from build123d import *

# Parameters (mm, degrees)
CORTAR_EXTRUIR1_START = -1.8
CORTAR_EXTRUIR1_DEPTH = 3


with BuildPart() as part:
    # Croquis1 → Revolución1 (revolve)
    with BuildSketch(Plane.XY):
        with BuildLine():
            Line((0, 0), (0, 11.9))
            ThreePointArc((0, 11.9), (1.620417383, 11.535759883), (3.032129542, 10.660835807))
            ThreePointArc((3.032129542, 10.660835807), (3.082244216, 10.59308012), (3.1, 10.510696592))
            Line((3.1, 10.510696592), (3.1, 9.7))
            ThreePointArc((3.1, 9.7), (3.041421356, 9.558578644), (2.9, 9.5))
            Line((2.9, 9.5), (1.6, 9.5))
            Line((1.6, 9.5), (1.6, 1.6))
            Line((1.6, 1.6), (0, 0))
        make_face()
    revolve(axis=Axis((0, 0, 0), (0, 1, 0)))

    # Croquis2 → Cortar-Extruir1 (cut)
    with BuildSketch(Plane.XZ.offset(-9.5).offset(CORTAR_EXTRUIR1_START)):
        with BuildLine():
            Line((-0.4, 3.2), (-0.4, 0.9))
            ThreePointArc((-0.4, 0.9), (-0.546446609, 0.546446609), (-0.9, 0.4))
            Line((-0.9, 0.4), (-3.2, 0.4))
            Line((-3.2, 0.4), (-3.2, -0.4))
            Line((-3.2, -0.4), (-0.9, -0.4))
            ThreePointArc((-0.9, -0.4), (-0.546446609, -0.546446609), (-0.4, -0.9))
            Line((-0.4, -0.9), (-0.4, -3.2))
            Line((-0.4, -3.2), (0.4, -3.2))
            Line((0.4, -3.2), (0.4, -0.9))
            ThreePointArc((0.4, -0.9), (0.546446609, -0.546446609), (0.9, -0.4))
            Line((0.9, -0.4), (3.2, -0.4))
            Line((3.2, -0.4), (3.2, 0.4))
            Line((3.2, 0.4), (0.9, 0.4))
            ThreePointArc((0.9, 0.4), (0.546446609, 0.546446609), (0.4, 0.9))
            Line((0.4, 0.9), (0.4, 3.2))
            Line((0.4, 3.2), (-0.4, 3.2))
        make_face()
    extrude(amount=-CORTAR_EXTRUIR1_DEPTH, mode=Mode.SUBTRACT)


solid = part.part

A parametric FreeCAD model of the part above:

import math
import FreeCAD as App
import Part
import Sketcher
from FreeCAD import Vector
Q = App.Units.Quantity

doc = App.newDocument("Part")
params = doc.addObject("Spreadsheet::Sheet", "Params")
for row, (alias, value) in enumerate([
    ("sketch1_radius", "5 mm"),
    ("sketch1_radius2", "0.2 mm"),
    ("sketch1_width", "1.3 mm"),
    ("sketch1_height", "11.9 mm"),
    ("sketch1_height2", "7.9 mm"),
    ("revolution_angle", "360 deg"),
    ("sketch2_radius", "0.5 mm"),
    ("sketch2_width", "2.3 mm"),
    ("sketch2_width2", "0.8 mm"),
    ("pocket1_length", "3 mm"),
], start=1):
    params.set(f"A{row}", alias)
    params.set(f"B{row}", "=" + value)
    params.setAlias(f"B{row}", alias)

body = doc.addObject("PartDesign::Body", "Body")

sketch1 = doc.addObject("Sketcher::SketchObject", "Sketch")
body.addObject(sketch1)
sketch1.AttachmentSupport = (doc.XY_Plane, [""])
sketch1.MapMode = "FlatFace"
sketch1.addGeometry(Part.LineSegment(Vector(0, 11.9, 0), Vector(0, 0, 0)), False)
sketch1.addGeometry(Part.LineSegment(Vector(0, 0, 0), Vector(1.6, 1.6, 0)), False)
sketch1.addGeometry(Part.LineSegment(Vector(1.6, 1.6, 0), Vector(1.6, 9.5, 0)), False)
sketch1.addGeometry(Part.LineSegment(Vector(1.6, 9.5, 0), Vector(2.9, 9.5, 0)), False)
sketch1.addGeometry(Part.ArcOfCircle(Part.Circle(Vector(2.9, 9.7, 0), Vector(0, 0, 1), 0.2), math.radians(-90), math.radians(0)), False)
sketch1.addGeometry(Part.LineSegment(Vector(3.1, 9.7, 0), Vector(3.1, 10.51, 0)), False)
sketch1.addGeometry(Part.ArcOfCircle(Part.Circle(Vector(2.9, 10.51, 0), Vector(0, 0, 1), 0.2), math.radians(0), math.radians(49)), False)
sketch1.addGeometry(Part.ArcOfCircle(Part.Circle(Vector(-0.27, 6.91, 0), Vector(0, 0, 1), 5), math.radians(49), math.radians(87)), False)
sketch1.addConstraint(Sketcher.Constraint("Coincident", 0, 2, 1, 1))
sketch1.addConstraint(Sketcher.Constraint("Coincident", 1, 2, 2, 1))
sketch1.addConstraint(Sketcher.Constraint("Coincident", 2, 2, 3, 1))
sketch1.addConstraint(Sketcher.Constraint("Tangent", 3, 2, 4, 1))
sketch1.addConstraint(Sketcher.Constraint("Tangent", 4, 2, 5, 1))
sketch1.addConstraint(Sketcher.Constraint("Tangent", 5, 2, 6, 1))
sketch1.addConstraint(Sketcher.Constraint("Tangent", 6, 2, 7, 1))
sketch1.addConstraint(Sketcher.Constraint("Coincident", 7, 2, 0, 1))
sketch1.addConstraint(Sketcher.Constraint("Vertical", 0))
sketch1.addConstraint(Sketcher.Constraint("Vertical", 2))
sketch1.addConstraint(Sketcher.Constraint("Horizontal", 3))
sketch1.addConstraint(Sketcher.Constraint("Vertical", 5))
sketch1.addConstraint(Sketcher.Constraint("Coincident", 0, 2, -1, 1))
sketch1.addConstraint(Sketcher.Constraint("Equal", 4, 6))
sketch1.addConstraint(Sketcher.Constraint("Radius", 7, 5.0))
sketch1.addConstraint(Sketcher.Constraint("Radius", 4, 0.2))
sketch1.addConstraint(Sketcher.Constraint("Angle", 1, Q("45 deg")))
sketch1.addConstraint(Sketcher.Constraint("DistanceX", 3, 1, 3, 2, 1.3))
sketch1.addConstraint(Sketcher.Constraint("DistanceY", 0, 2, 0, 1, 11.9))
sketch1.addConstraint(Sketcher.Constraint("DistanceY", 2, 1, 2, 2, 7.9))
sketch1.addConstraint(Sketcher.Constraint("DistanceX", -1, 1, 4, 3, 2.9))
sketch1.addConstraint(Sketcher.Constraint("DistanceY", 5, 1, 5, 2, 0.810697))
sketch1.setExpression("Constraints[14]", "Params.sketch1_radius")
sketch1.setExpression("Constraints[15]", "Params.sketch1_radius2")
sketch1.setExpression("Constraints[17]", "Params.sketch1_width")
sketch1.setExpression("Constraints[18]", "Params.sketch1_height")
sketch1.setExpression("Constraints[19]", "Params.sketch1_height2")
revolution = doc.addObject("PartDesign::Revolution", "Revolution")
body.addObject(revolution)
revolution.Profile = sketch1
revolution.ReferenceAxis = (sketch1, ["V_Axis"])
revolution.setExpression("Angle", "Params.revolution_angle")

sketch2 = doc.addObject("Sketcher::SketchObject", "Sketch001")
body.addObject(sketch2)
sketch2.AttachmentSupport = (doc.XZ_Plane, [""])
sketch2.MapMode = "FlatFace"
sketch2.AttachmentOffset = App.Placement(Vector(0, 0, -11.3), App.Rotation())
sketch2.addGeometry(Part.LineSegment(Vector(-0.4, 3.2, 0), Vector(-0.4, 0.9, 0)), False)
sketch2.addGeometry(Part.ArcOfCircle(Part.Circle(Vector(-0.9, 0.9, 0), Vector(0, 0, 1), 0.5), math.radians(-90), math.radians(0)), False)
sketch2.addGeometry(Part.LineSegment(Vector(-0.9, 0.4, 0), Vector(-3.2, 0.4, 0)), False)
sketch2.addGeometry(Part.LineSegment(Vector(-3.2, 0.4, 0), Vector(-3.2, -0.4, 0)), False)
sketch2.addGeometry(Part.LineSegment(Vector(-3.2, -0.4, 0), Vector(-0.9, -0.4, 0)), False)
sketch2.addGeometry(Part.ArcOfCircle(Part.Circle(Vector(-0.9, -0.9, 0), Vector(0, 0, 1), 0.5), math.radians(0), math.radians(90)), False)
sketch2.addGeometry(Part.LineSegment(Vector(-0.4, -0.9, 0), Vector(-0.4, -3.2, 0)), False)
sketch2.addGeometry(Part.LineSegment(Vector(-0.4, -3.2, 0), Vector(0.4, -3.2, 0)), False)
sketch2.addGeometry(Part.LineSegment(Vector(0.4, -3.2, 0), Vector(0.4, -0.9, 0)), False)
sketch2.addGeometry(Part.ArcOfCircle(Part.Circle(Vector(0.9, -0.9, 0), Vector(0, 0, 1), 0.5), math.radians(90), math.radians(180)), False)
sketch2.addGeometry(Part.LineSegment(Vector(0.9, -0.4, 0), Vector(3.2, -0.4, 0)), False)
sketch2.addGeometry(Part.LineSegment(Vector(3.2, -0.4, 0), Vector(3.2, 0.4, 0)), False)
sketch2.addGeometry(Part.LineSegment(Vector(3.2, 0.4, 0), Vector(0.9, 0.4, 0)), False)
sketch2.addGeometry(Part.ArcOfCircle(Part.Circle(Vector(0.9, 0.9, 0), Vector(0, 0, 1), 0.5), math.radians(180), math.radians(270)), False)
sketch2.addGeometry(Part.LineSegment(Vector(0.4, 0.9, 0), Vector(0.4, 3.2, 0)), False)
sketch2.addGeometry(Part.LineSegment(Vector(0.4, 3.2, 0), Vector(-0.4, 3.2, 0)), False)
sketch2.addConstraint(Sketcher.Constraint("Tangent", 0, 2, 1, 2))
sketch2.addConstraint(Sketcher.Constraint("Tangent", 1, 1, 2, 1))
sketch2.addConstraint(Sketcher.Constraint("Coincident", 2, 2, 3, 1))
sketch2.addConstraint(Sketcher.Constraint("Coincident", 3, 2, 4, 1))
sketch2.addConstraint(Sketcher.Constraint("Tangent", 4, 2, 5, 2))
sketch2.addConstraint(Sketcher.Constraint("Tangent", 5, 1, 6, 1))
sketch2.addConstraint(Sketcher.Constraint("Coincident", 6, 2, 7, 1))
sketch2.addConstraint(Sketcher.Constraint("Coincident", 7, 2, 8, 1))
sketch2.addConstraint(Sketcher.Constraint("Tangent", 8, 2, 9, 2))
sketch2.addConstraint(Sketcher.Constraint("Tangent", 9, 1, 10, 1))
sketch2.addConstraint(Sketcher.Constraint("Coincident", 10, 2, 11, 1))
sketch2.addConstraint(Sketcher.Constraint("Coincident", 11, 2, 12, 1))
sketch2.addConstraint(Sketcher.Constraint("Tangent", 12, 2, 13, 2))
sketch2.addConstraint(Sketcher.Constraint("Tangent", 13, 1, 14, 1))
sketch2.addConstraint(Sketcher.Constraint("Coincident", 14, 2, 15, 1))
sketch2.addConstraint(Sketcher.Constraint("Coincident", 15, 2, 0, 1))
sketch2.addConstraint(Sketcher.Constraint("Vertical", 0))
sketch2.addConstraint(Sketcher.Constraint("Horizontal", 2))
sketch2.addConstraint(Sketcher.Constraint("Vertical", 3))
sketch2.addConstraint(Sketcher.Constraint("Horizontal", 4))
sketch2.addConstraint(Sketcher.Constraint("Vertical", 6))
sketch2.addConstraint(Sketcher.Constraint("Horizontal", 7))
sketch2.addConstraint(Sketcher.Constraint("Vertical", 8))
sketch2.addConstraint(Sketcher.Constraint("Horizontal", 10))
sketch2.addConstraint(Sketcher.Constraint("Vertical", 11))
sketch2.addConstraint(Sketcher.Constraint("Horizontal", 12))
sketch2.addConstraint(Sketcher.Constraint("Vertical", 14))
sketch2.addConstraint(Sketcher.Constraint("Horizontal", 15))
sketch2.addConstraint(Sketcher.Constraint("Equal", 1, 5))
sketch2.addConstraint(Sketcher.Constraint("Equal", 5, 9))
sketch2.addConstraint(Sketcher.Constraint("Equal", 9, 13))
sketch2.addConstraint(Sketcher.Constraint("Symmetric", 1, 3, 9, 3, -1, 1))
sketch2.addConstraint(Sketcher.Constraint("Symmetric", 5, 3, 13, 3, -1, 1))
sketch2.addConstraint(Sketcher.Constraint("Symmetric", 5, 3, 9, 3, -2))
sketch2.addConstraint(Sketcher.Constraint("Equal", 4, 10))
sketch2.addConstraint(Sketcher.Constraint("Equal", 12, 0))
sketch2.addConstraint(Sketcher.Constraint("Equal", 15, 3))
sketch2.addConstraint(Sketcher.Constraint("Equal", 0, 6))
sketch2.addConstraint(Sketcher.Constraint("Radius", 1, 0.5))
sketch2.addConstraint(Sketcher.Constraint("DistanceX", 2, 2, 2, 1, 2.3))
sketch2.addConstraint(Sketcher.Constraint("DistanceX", 7, 1, 7, 2, 0.8))
sketch2.setExpression("Constraints[38]", "Params.sketch2_radius")
sketch2.setExpression("Constraints[39]", "Params.sketch2_width")
sketch2.setExpression("Constraints[40]", "Params.sketch2_width2")
pocket1 = doc.addObject("PartDesign::Pocket", "Pocket")
body.addObject(pocket1)
pocket1.Profile = sketch2
pocket1.setExpression("Length", "Params.pocket1_length")

doc.recompute()
